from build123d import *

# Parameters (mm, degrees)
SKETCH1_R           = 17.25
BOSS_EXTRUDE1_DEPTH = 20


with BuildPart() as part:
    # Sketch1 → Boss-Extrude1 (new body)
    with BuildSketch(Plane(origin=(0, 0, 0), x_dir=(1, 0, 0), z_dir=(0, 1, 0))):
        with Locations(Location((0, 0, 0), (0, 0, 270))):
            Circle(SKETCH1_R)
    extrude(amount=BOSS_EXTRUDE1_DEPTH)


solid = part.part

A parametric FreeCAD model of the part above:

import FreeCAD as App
import Part
import Sketcher

doc = App.newDocument("Part")
params = doc.addObject("Spreadsheet::Sheet", "Params")
for row, (alias, value) in enumerate([
    ("sketch1_diameter", "34.5 mm"),
    ("pad1_length", "20 mm"),
], start=1):
    params.set(f"A{row}", alias)
    params.set(f"B{row}", "=" + value)
    params.setAlias(f"B{row}", alias)

body = doc.addObject("PartDesign::Body", "Body")

# Sketch on XZ plane
sketch1 = body.newObject("Sketcher::SketchObject", "Sketch")
sketch1.AttachmentSupport = (doc.getObject("XZ_Plane"), [""])
sketch1.MapMode = "FlatFace"
sketch1.addGeometry(Part.Circle(App.Vector(0, 0, 0), App.Vector(0, 0, 1), 17), False)
sketch1.addConstraint([
    Sketcher.Constraint("Coincident", 0, 3, -1, 1),
    Sketcher.Constraint("Diameter", 0, 34.5),
])
sketch1.setExpression("Constraints[1]", "Params.sketch1_diameter")
pad1 = body.newObject("PartDesign::Pad", "Pad")
pad1.Profile = sketch1
pad1.setExpression("Length", "Params.pad1_length")
pad1.Reversed = True

doc.recompute()
